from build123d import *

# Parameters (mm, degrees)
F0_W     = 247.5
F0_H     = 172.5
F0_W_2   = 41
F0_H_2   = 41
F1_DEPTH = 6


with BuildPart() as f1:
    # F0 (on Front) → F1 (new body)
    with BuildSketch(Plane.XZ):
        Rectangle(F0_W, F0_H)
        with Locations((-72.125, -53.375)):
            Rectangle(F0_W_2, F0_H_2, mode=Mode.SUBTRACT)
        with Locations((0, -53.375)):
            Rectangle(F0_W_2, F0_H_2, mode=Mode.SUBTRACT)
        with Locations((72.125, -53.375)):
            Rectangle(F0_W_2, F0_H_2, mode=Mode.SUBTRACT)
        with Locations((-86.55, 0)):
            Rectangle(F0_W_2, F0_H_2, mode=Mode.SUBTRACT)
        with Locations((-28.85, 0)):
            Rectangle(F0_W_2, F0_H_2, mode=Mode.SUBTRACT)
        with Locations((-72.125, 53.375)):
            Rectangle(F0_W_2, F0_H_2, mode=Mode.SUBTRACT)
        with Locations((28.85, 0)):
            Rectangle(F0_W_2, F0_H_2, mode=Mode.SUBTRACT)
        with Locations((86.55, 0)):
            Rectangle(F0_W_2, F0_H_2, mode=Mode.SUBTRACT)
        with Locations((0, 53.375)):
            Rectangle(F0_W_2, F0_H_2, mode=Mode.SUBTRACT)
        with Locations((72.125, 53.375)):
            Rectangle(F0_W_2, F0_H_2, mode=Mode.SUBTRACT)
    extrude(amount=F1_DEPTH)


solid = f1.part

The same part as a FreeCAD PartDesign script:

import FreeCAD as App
import Part
import Sketcher
from FreeCAD import Vector

doc = App.newDocument("Part")
params = doc.addObject("Spreadsheet::Sheet", "Params")
for row, (alias, value) in enumerate([
    ("sketch1_width", "41 mm"),
    ("sketch1_width2", "247.5 mm"),
    ("sketch1_height", "172.5 mm"),
    ("pad1_length", "6 mm"),
], start=1):
    params.set(f"A{row}", alias)
    params.set(f"B{row}", "=" + value)
    params.setAlias(f"B{row}", alias)

body = doc.addObject("PartDesign::Body", "Body")

# Sketch on XZ plane
sketch1 = doc.addObject("Sketcher::SketchObject", "Sketch")
body.addObject(sketch1)
sketch1.AttachmentSupport = (doc.XZ_Plane, [""])
sketch1.MapMode = "FlatFace"
sketch1.addGeometry(Part.LineSegment(Vector(-124, 86, 0), Vector(-124, -86, 0)), False)
sketch1.addGeometry(Part.LineSegment(Vector(-124, -86, 0), Vector(124, -86, 0)), False)
sketch1.addGeometry(Part.LineSegment(Vector(124, -86, 0), Vector(124, 86, 0)), False)
sketch1.addGeometry(Part.LineSegment(Vector(124, 86, 0), Vector(-124, 86, 0)), False)
sketch1.addGeometry(Part.LineSegment(Vector(-52, -74, 0), Vector(-93, -74, 0)), False)
sketch1.addGeometry(Part.LineSegment(Vector(-93, -74, 0), Vector(-93, -33, 0)), False)
sketch1.addGeometry(Part.LineSegment(Vector(-93, -33, 0), Vector(-52, -33, 0)), False)
sketch1.addGeometry(Part.LineSegment(Vector(-52, -33, 0), Vector(-52, -74, 0)), False)
sketch1.addGeometry(Part.LineSegment(Vector(20, -74, 0), Vector(-20, -74, 0)), False)
sketch1.addGeometry(Part.LineSegment(Vector(-20, -74, 0), Vector(-20, -33, 0)), False)
sketch1.addGeometry(Part.LineSegment(Vector(-20, -33, 0), Vector(20, -33, 0)), False)
sketch1.addGeometry(Part.LineSegment(Vector(20, -33, 0), Vector(20, -74, 0)), False)
sketch1.addGeometry(Part.LineSegment(Vector(93, -74, 0), Vector(52, -74, 0)), False)
sketch1.addGeometry(Part.LineSegment(Vector(52, -74, 0), Vector(52, -33, 0)), False)
sketch1.addGeometry(Part.LineSegment(Vector(52, -33, 0), Vector(93, -33, 0)), False)
sketch1.addGeometry(Part.LineSegment(Vector(93, -33, 0), Vector(93, -74, 0)), False)
sketch1.addGeometry(Part.LineSegment(Vector(-66, -20, 0), Vector(-107, -20, 0)), False)
sketch1.addGeometry(Part.LineSegment(Vector(-107, -20, 0), Vector(-107, 20, 0)), False)
sketch1.addGeometry(Part.LineSegment(Vector(-107, 20, 0), Vector(-66, 20, 0)), False)
sketch1.addGeometry(Part.LineSegment(Vector(-66, 20, 0), Vector(-66, -20, 0)), False)
sketch1.addGeometry(Part.LineSegment(Vector(-8, -20, 0), Vector(-49, -20, 0)), False)
sketch1.addGeometry(Part.LineSegment(Vector(-49, -20, 0), Vector(-49, 20, 0)), False)
sketch1.addGeometry(Part.LineSegment(Vector(-49, 20, 0), Vector(-8, 20, 0)), False)
sketch1.addGeometry(Part.LineSegment(Vector(-8, 20, 0), Vector(-8, -20, 0)), False)
sketch1.addGeometry(Part.LineSegment(Vector(-52, 33, 0), Vector(-93, 33, 0)), False)
sketch1.addGeometry(Part.LineSegment(Vector(-93, 33, 0), Vector(-93, 74, 0)), False)
sketch1.addGeometry(Part.LineSegment(Vector(-93, 74, 0), Vector(-52, 74, 0)), False)
sketch1.addGeometry(Part.LineSegment(Vector(-52, 74, 0), Vector(-52, 33, 0)), False)
sketch1.addGeometry(Part.LineSegment(Vector(20, 33, 0), Vector(-20, 33, 0)), False)
sketch1.addGeometry(Part.LineSegment(Vector(-20, 33, 0), Vector(-20, 74, 0)), False)
sketch1.addGeometry(Part.LineSegment(Vector(-20, 74, 0), Vector(20, 74, 0)), False)
sketch1.addGeometry(Part.LineSegment(Vector(20, 74, 0), Vector(20, 33, 0)), False)
sketch1.addGeometry(Part.LineSegment(Vector(49, -20, 0), Vector(8, -20, 0)), False)
sketch1.addGeometry(Part.LineSegment(Vector(8, -20, 0), Vector(8, 20, 0)), False)
sketch1.addGeometry(Part.LineSegment(Vector(8, 20, 0), Vector(49, 20, 0)), False)
sketch1.addGeometry(Part.LineSegment(Vector(49, 20, 0), Vector(49, -20, 0)), False)
sketch1.addGeometry(Part.LineSegment(Vector(107, -20, 0), Vector(66, -20, 0)), False)
sketch1.addGeometry(Part.LineSegment(Vector(66, -20, 0), Vector(66, 20, 0)), False)
sketch1.addGeometry(Part.LineSegment(Vector(66, 20, 0), Vector(107, 20, 0)), False)
sketch1.addGeometry(Part.LineSegment(Vector(107, 20, 0), Vector(107, -20, 0)), False)
sketch1.addGeometry(Part.LineSegment(Vector(93, 33, 0), Vector(52, 33, 0)), False)
sketch1.addGeometry(Part.LineSegment(Vector(52, 33, 0), Vector(52, 74, 0)), False)
sketch1.addGeometry(Part.LineSegment(Vector(52, 74, 0), Vector(93, 74, 0)), False)
sketch1.addGeometry(Part.LineSegment(Vector(93, 74, 0), Vector(93, 33, 0)), False)
sketch1.addConstraint(Sketcher.Constraint("Coincident", 0, 2, 1, 1))
sketch1.addConstraint(Sketcher.Constraint("Coincident", 1, 2, 2, 1))
sketch1.addConstraint(Sketcher.Constraint("Coincident", 2, 2, 3, 1))
sketch1.addConstraint(Sketcher.Constraint("Coincident", 3, 2, 0, 1))
sketch1.addConstraint(Sketcher.Constraint("Coincident", 4, 2, 5, 1))
sketch1.addConstraint(Sketcher.Constraint("Coincident", 5, 2, 6, 1))
sketch1.addConstraint(Sketcher.Constraint("Coincident", 6, 2, 7, 1))
sketch1.addConstraint(Sketcher.Constraint("Coincident", 7, 2, 4, 1))
sketch1.addConstraint(Sketcher.Constraint("Coincident", 8, 2, 9, 1))
sketch1.addConstraint(Sketcher.Constraint("Coincident", 9, 2, 10, 1))
sketch1.addConstraint(Sketcher.Constraint("Coincident", 10, 2, 11, 1))
sketch1.addConstraint(Sketcher.Constraint("Coincident", 11, 2, 8, 1))
sketch1.addConstraint(Sketcher.Constraint("Coincident", 12, 2, 13, 1))
sketch1.addConstraint(Sketcher.Constraint("Coincident", 13, 2, 14, 1))
sketch1.addConstraint(Sketcher.Constraint("Coincident", 14, 2, 15, 1))
sketch1.addConstraint(Sketcher.Constraint("Coincident", 15, 2, 12, 1))
sketch1.addConstraint(Sketcher.Constraint("Coincident", 16, 2, 17, 1))
sketch1.addConstraint(Sketcher.Constraint("Coincident", 17, 2, 18, 1))
sketch1.addConstraint(Sketcher.Constraint("Coincident", 18, 2, 19, 1))
sketch1.addConstraint(Sketcher.Constraint("Coincident", 19, 2, 16, 1))
sketch1.addConstraint(Sketcher.Constraint("Coincident", 20, 2, 21, 1))
sketch1.addConstraint(Sketcher.Constraint("Coincident", 21, 2, 22, 1))
sketch1.addConstraint(Sketcher.Constraint("Coincident", 22, 2, 23, 1))
sketch1.addConstraint(Sketcher.Constraint("Coincident", 23, 2, 20, 1))
sketch1.addConstraint(Sketcher.Constraint("Coincident", 24, 2, 25, 1))
sketch1.addConstraint(Sketcher.Constraint("Coincident", 25, 2, 26, 1))
sketch1.addConstraint(Sketcher.Constraint("Coincident", 26, 2, 27, 1))
sketch1.addConstraint(Sketcher.Constraint("Coincident", 27, 2, 24, 1))
sketch1.addConstraint(Sketcher.Constraint("Coincident", 28, 2, 29, 1))
sketch1.addConstraint(Sketcher.Constraint("Coincident", 29, 2, 30, 1))
sketch1.addConstraint(Sketcher.Constraint("Coincident", 30, 2, 31, 1))
sketch1.addConstraint(Sketcher.Constraint("Coincident", 31, 2, 28, 1))
sketch1.addConstraint(Sketcher.Constraint("Coincident", 32, 2, 33, 1))
sketch1.addConstraint(Sketcher.Constraint("Coincident", 33, 2, 34, 1))
sketch1.addConstraint(Sketcher.Constraint("Coincident", 34, 2, 35, 1))
sketch1.addConstraint(Sketcher.Constraint("Coincident", 35, 2, 32, 1))
sketch1.addConstraint(Sketcher.Constraint("Coincident", 36, 2, 37, 1))
sketch1.addConstraint(Sketcher.Constraint("Coincident", 37, 2, 38, 1))
sketch1.addConstraint(Sketcher.Constraint("Coincident", 38, 2, 39, 1))
sketch1.addConstraint(Sketcher.Constraint("Coincident", 39, 2, 36, 1))
sketch1.addConstraint(Sketcher.Constraint("Coincident", 40, 2, 41, 1))
sketch1.addConstraint(Sketcher.Constraint("Coincident", 41, 2, 42, 1))
sketch1.addConstraint(Sketcher.Constraint("Coincident", 42, 2, 43, 1))
sketch1.addConstraint(Sketcher.Constraint("Coincident", 43, 2, 40, 1))
sketch1.addConstraint(Sketcher.Constraint("Vertical", 0))
sketch1.addConstraint(Sketcher.Constraint("Horizontal", 1))
sketch1.addConstraint(Sketcher.Constraint("Vertical", 2))
sketch1.addConstraint(Sketcher.Constraint("Horizontal", 3))
sketch1.addConstraint(Sketcher.Constraint("Horizontal", 4))
sketch1.addConstraint(Sketcher.Constraint("Vertical", 5))
sketch1.addConstraint(Sketcher.Constraint("Horizontal", 6))
sketch1.addConstraint(Sketcher.Constraint("Vertical", 7))
sketch1.addConstraint(Sketcher.Constraint("Horizontal", 8))
sketch1.addConstraint(Sketcher.Constraint("Vertical", 9))
sketch1.addConstraint(Sketcher.Constraint("Horizontal", 10))
sketch1.addConstraint(Sketcher.Constraint("Vertical", 11))
sketch1.addConstraint(Sketcher.Constraint("Horizontal", 12))
sketch1.addConstraint(Sketcher.Constraint("Vertical", 13))
sketch1.addConstraint(Sketcher.Constraint("Horizontal", 14))
sketch1.addConstraint(Sketcher.Constraint("Vertical", 15))
sketch1.addConstraint(Sketcher.Constraint("Horizontal", 16))
sketch1.addConstraint(Sketcher.Constraint("Vertical", 17))
sketch1.addConstraint(Sketcher.Constraint("Horizontal", 18))
sketch1.addConstraint(Sketcher.Constraint("Vertical", 19))
sketch1.addConstraint(Sketcher.Constraint("Horizontal", 20))
sketch1.addConstraint(Sketcher.Constraint("Vertical", 21))
sketch1.addConstraint(Sketcher.Constraint("Horizontal", 22))
sketch1.addConstraint(Sketcher.Constraint("Vertical", 23))
sketch1.addConstraint(Sketcher.Constraint("Horizontal", 24))
sketch1.addConstraint(Sketcher.Constraint("Vertical", 25))
sketch1.addConstraint(Sketcher.Constraint("Horizontal", 26))
sketch1.addConstraint(Sketcher.Constraint("Vertical", 27))
sketch1.addConstraint(Sketcher.Constraint("Horizontal", 28))
sketch1.addConstraint(Sketcher.Constraint("Vertical", 29))
sketch1.addConstraint(Sketcher.Constraint("Horizontal", 30))
sketch1.addConstraint(Sketcher.Constraint("Vertical", 31))
sketch1.addConstraint(Sketcher.Constraint("Horizontal", 32))
sketch1.addConstraint(Sketcher.Constraint("Vertical", 33))
sketch1.addConstraint(Sketcher.Constraint("Horizontal", 34))
sketch1.addConstraint(Sketcher.Constraint("Vertical", 35))
sketch1.addConstraint(Sketcher.Constraint("Horizontal", 36))
sketch1.addConstraint(Sketcher.Constraint("Vertical", 37))
sketch1.addConstraint(Sketcher.Constraint("Horizontal", 38))
sketch1.addConstraint(Sketcher.Constraint("Vertical", 39))
sketch1.addConstraint(Sketcher.Constraint("Horizontal", 40))
sketch1.addConstraint(Sketcher.Constraint("Vertical", 41))
sketch1.addConstraint(Sketcher.Constraint("Horizontal", 42))
sketch1.addConstraint(Sketcher.Constraint("Vertical", 43))
sketch1.addConstraint(Sketcher.Constraint("Symmetric", 0, 2, 2, 2, -1, 1))
sketch1.addConstraint(Sketcher.Constraint("Symmetric", 14, 2, 24, 2, -1, 1))
sketch1.addConstraint(Sketcher.Constraint("Symmetric", 12, 2, 26, 2, -1, 1))
sketch1.addConstraint(Sketcher.Constraint("Symmetric", 10, 2, 28, 2, -1, 1))
sketch1.addConstraint(Sketcher.Constraint("Symmetric", 8, 2, 30, 2, -1, 1))
sketch1.addConstraint(Sketcher.Constraint("Symmetric", 22, 2, 32, 2, -1, 1))
sketch1.addConstraint(Sketcher.Constraint("Symmetric", 20, 2, 34, 2, -1, 1))
sketch1.addConstraint(Sketcher.Constraint("Symmetric", 18, 2, 36, 2, -1, 1))
sketch1.addConstraint(Sketcher.Constraint("Symmetric", 16, 2, 38, 2, -1, 1))
sketch1.addConstraint(Sketcher.Constraint("Symmetric", 6, 2, 40, 2, -1, 1))
sketch1.addConstraint(Sketcher.Constraint("Symmetric", 4, 2, 42, 2, -1, 1))
sketch1.addConstraint(Sketcher.Constraint("Symmetric", 7, 2, 12, 2, -2))
sketch1.addConstraint(Sketcher.Constraint("Symmetric", 5, 2, 14, 2, -2))
sketch1.addConstraint(Sketcher.Constraint("Horizontal", 7, 2, 8, 2))
sketch1.addConstraint(Sketcher.Constraint("Horizontal", 6, 2, 9, 2))
sketch1.addConstraint(Sketcher.Constraint("Horizontal", 19, 2, 20, 2))
sketch1.addConstraint(Sketcher.Constraint("Horizontal", 18, 2, 21, 2))
sketch1.addConstraint(Sketcher.Constraint("Horizontal", 23, 2, 32, 2))
sketch1.addConstraint(Sketcher.Constraint("Vertical", 9, 2, 28, 2))
sketch1.addConstraint(Sketcher.Constraint("Equal", 6, 8))
sketch1.addConstraint(Sketcher.Constraint("Equal", 14, 16))
sketch1.addConstraint(Sketcher.Constraint("Equal", 18, 20))
sketch1.addConstraint(Sketcher.Constraint("Equal", 42, 5))
sketch1.addConstraint(Sketcher.Constraint("Equal", 15, 17))
sketch1.addConstraint(Sketcher.Constraint("DistanceX", 4, 2, 4, 1, 41.0))
sketch1.addConstraint(Sketcher.Constraint("DistanceX", 1, 1, 1, 2, 247.5))
sketch1.addConstraint(Sketcher.Constraint("DistanceY", 0, 2, 0, 1, 172.5))
sketch1.addConstraint(Sketcher.Constraint("DistanceX", 0, 2, 16, 2, 16.7))
sketch1.addConstraint(Sketcher.Constraint("DistanceX", 19, 2, 20, 2, 16.7))
sketch1.addConstraint(Sketcher.Constraint("DistanceX", 4, 2, -1, 1, 92.625))
sketch1.addConstraint(Sketcher.Constraint("DistanceY", 4, 2, -1, 1, 73.875))
sketch1.setExpression("Constraints[112]", "Params.sketch1_width")
sketch1.setExpression("Constraints[113]", "Params.sketch1_width2")
sketch1.setExpression("Constraints[114]", "Params.sketch1_height")
pad1 = doc.addObject("PartDesign::Pad", "Pad")
body.addObject(pad1)
pad1.Profile = sketch1
pad1.setExpression("Length", "Params.pad1_length")

doc.recompute()
